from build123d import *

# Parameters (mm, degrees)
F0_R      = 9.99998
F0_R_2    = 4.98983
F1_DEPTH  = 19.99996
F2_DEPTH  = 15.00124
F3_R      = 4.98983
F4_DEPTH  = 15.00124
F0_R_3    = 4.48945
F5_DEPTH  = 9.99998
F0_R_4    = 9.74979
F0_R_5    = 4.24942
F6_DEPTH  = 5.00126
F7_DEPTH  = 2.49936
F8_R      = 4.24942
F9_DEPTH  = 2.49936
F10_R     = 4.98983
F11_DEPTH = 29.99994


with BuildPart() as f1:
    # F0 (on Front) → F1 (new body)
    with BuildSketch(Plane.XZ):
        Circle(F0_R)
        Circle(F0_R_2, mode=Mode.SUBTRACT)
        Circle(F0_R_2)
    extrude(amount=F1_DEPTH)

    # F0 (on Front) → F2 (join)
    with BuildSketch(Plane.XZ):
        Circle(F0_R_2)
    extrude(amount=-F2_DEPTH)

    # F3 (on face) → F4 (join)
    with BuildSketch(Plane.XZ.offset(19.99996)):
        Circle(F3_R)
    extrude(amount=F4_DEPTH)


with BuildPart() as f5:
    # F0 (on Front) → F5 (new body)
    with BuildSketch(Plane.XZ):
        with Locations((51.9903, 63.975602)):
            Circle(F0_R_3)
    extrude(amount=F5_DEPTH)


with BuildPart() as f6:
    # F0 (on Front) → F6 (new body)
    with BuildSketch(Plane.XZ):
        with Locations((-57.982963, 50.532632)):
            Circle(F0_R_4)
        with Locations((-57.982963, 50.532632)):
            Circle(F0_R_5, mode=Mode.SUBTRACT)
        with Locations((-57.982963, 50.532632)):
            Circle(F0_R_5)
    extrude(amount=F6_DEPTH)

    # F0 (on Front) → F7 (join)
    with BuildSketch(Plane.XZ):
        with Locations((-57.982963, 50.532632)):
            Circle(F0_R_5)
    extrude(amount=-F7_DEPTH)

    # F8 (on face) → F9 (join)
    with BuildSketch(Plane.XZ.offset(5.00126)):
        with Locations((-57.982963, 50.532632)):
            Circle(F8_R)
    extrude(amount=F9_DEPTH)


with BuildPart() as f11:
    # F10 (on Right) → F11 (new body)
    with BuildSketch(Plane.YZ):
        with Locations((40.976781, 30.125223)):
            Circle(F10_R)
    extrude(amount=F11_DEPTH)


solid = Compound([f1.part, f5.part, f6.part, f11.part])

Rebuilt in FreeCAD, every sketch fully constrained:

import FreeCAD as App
import Part
import Sketcher
Q = App.Units.Quantity

doc = App.newDocument("Part")
params = doc.addObject("Spreadsheet::Sheet", "Params")
for row, (alias, value) in enumerate([
    ("pad1_length", "19.99996 mm"),
    ("pad2_length", "15.00124 mm"),
    ("pad3_length", "15.00124 mm"),
    ("pad4_length", "9.99998 mm"),
    ("pad5_length", "5.00126 mm"),
    ("pad6_length", "2.49936 mm"),
    ("pad7_length", "2.49936 mm"),
    ("pad8_length", "29.99994 mm"),
], start=1):
    params.set(f"A{row}", alias)
    params.set(f"B{row}", "=" + value)
    params.setAlias(f"B{row}", alias)

body = doc.addObject("PartDesign::Body", "Body")

# Sketch on XZ plane
sketch1 = doc.addObject("Sketcher::SketchObject", "Sketch")
body.addObject(sketch1)
sketch1.AttachmentSupport = (doc.XZ_Plane, [""])
sketch1.MapMode = "FlatFace"
sketch1.addGeometry(Part.Circle(App.Vector(0, 0, 0), App.Vector(0, 0, 1), 10), False)
sketch1.addConstraint([
    Sketcher.Constraint("Coincident", 0, 3, -1, 1),
    Sketcher.Constraint("Diameter", 0, Q("19.99996 mm")),
])
pad1 = doc.addObject("PartDesign::Pad", "Pad")
body.addObject(pad1)
pad1.Profile = sketch1
pad1.setExpression("Length", "Params.pad1_length")

# Sketch on XZ plane
sketch2 = doc.addObject("Sketcher::SketchObject", "Sketch001")
body.addObject(sketch2)
sketch2.AttachmentSupport = (doc.XZ_Plane, [""])
sketch2.MapMode = "FlatFace"
sketch2.addGeometry(Part.Circle(App.Vector(0, 0, 0), App.Vector(0, 0, 1), 5), False)
sketch2.addConstraint([
    Sketcher.Constraint("Coincident", 0, 3, -1, 1),
    Sketcher.Constraint("Diameter", 0, Q("9.97966 mm")),
])
pad2 = doc.addObject("PartDesign::Pad", "Pad001")
body.addObject(pad2)
pad2.Profile = sketch2
pad2.setExpression("Length", "Params.pad2_length")
pad2.Reversed = True

# Sketch on XZ plane
sketch3 = doc.addObject("Sketcher::SketchObject", "Sketch002")
body.addObject(sketch3)
sketch3.AttachmentSupport = (doc.XZ_Plane, [""])
sketch3.MapMode = "FlatFace"
sketch3.AttachmentOffset = App.Placement(App.Vector(0, 0, 19.99996), App.Rotation())
sketch3.addGeometry(Part.Circle(App.Vector(0, 0, 0), App.Vector(0, 0, 1), 5), False)
sketch3.addConstraint([
    Sketcher.Constraint("Coincident", 0, 3, -1, 1),
    Sketcher.Constraint("Diameter", 0, Q("9.97966 mm")),
])
pad3 = doc.addObject("PartDesign::Pad", "Pad002")
body.addObject(pad3)
pad3.Profile = sketch3
pad3.setExpression("Length", "Params.pad3_length")
body2 = doc.addObject("PartDesign::Body", "Body001")

# Sketch on XZ plane
sketch4 = doc.addObject("Sketcher::SketchObject", "Sketch003")
body2.addObject(sketch4)
sketch4.AttachmentSupport = (doc.getObject("XZ_Plane001"), [""])
sketch4.MapMode = "FlatFace"
sketch4.addGeometry(Part.Circle(App.Vector(52, 64, 0), App.Vector(0, 0, 1), 4.5), False)
sketch4.addConstraint([
    Sketcher.Constraint("Diameter", 0, Q("8.9789 mm")),
    Sketcher.Constraint("DistanceX", -1, 1, 0, 3, Q("51.9903 mm")),
    Sketcher.Constraint("DistanceY", -1, 1, 0, 3, Q("63.975602 mm")),
])
pad4 = doc.addObject("PartDesign::Pad", "Pad003")
body2.addObject(pad4)
pad4.Profile = sketch4
pad4.setExpression("Length", "Params.pad4_length")
body3 = doc.addObject("PartDesign::Body", "Body002")

# Sketch on XZ plane
sketch5 = doc.addObject("Sketcher::SketchObject", "Sketch004")
body3.addObject(sketch5)
sketch5.AttachmentSupport = (doc.getObject("XZ_Plane002"), [""])
sketch5.MapMode = "FlatFace"
sketch5.addGeometry(Part.Circle(App.Vector(-58, 51, 0), App.Vector(0, 0, 1), 10), False)
sketch5.addConstraint([
    Sketcher.Constraint("Diameter", 0, Q("19.49958 mm")),
    Sketcher.Constraint("DistanceX", 0, 3, -1, 1, Q("57.982963 mm")),
    Sketcher.Constraint("DistanceY", -1, 1, 0, 3, Q("50.532632 mm")),
])
pad5 = doc.addObject("PartDesign::Pad", "Pad004")
body3.addObject(pad5)
pad5.Profile = sketch5
pad5.setExpression("Length", "Params.pad5_length")

# Sketch on XZ plane
sketch6 = doc.addObject("Sketcher::SketchObject", "Sketch005")
body3.addObject(sketch6)
sketch6.AttachmentSupport = (doc.getObject("XZ_Plane002"), [""])
sketch6.MapMode = "FlatFace"
sketch6.addGeometry(Part.Circle(App.Vector(-58, 50.5, 0), App.Vector(0, 0, 1), 4.2), False)
sketch6.addConstraint([
    Sketcher.Constraint("Diameter", 0, Q("8.49884 mm")),
    Sketcher.Constraint("DistanceX", 0, 3, -1, 1, Q("57.982963 mm")),
    Sketcher.Constraint("DistanceY", -1, 1, 0, 3, Q("50.532632 mm")),
])
pad6 = doc.addObject("PartDesign::Pad", "Pad005")
body3.addObject(pad6)
pad6.Profile = sketch6
pad6.setExpression("Length", "Params.pad6_length")
pad6.Reversed = True

# Sketch on XZ plane
sketch7 = doc.addObject("Sketcher::SketchObject", "Sketch006")
body3.addObject(sketch7)
sketch7.AttachmentSupport = (doc.getObject("XZ_Plane002"), [""])
sketch7.MapMode = "FlatFace"
sketch7.AttachmentOffset = App.Placement(App.Vector(0, 0, 5.00126), App.Rotation())
sketch7.addGeometry(Part.Circle(App.Vector(-58, 50.5, 0), App.Vector(0, 0, 1), 4.2), False)
sketch7.addConstraint([
    Sketcher.Constraint("Diameter", 0, Q("8.49884 mm")),
    Sketcher.Constraint("DistanceX", 0, 3, -1, 1, Q("57.982963 mm")),
    Sketcher.Constraint("DistanceY", -1, 1, 0, 3, Q("50.532632 mm")),
])
pad7 = doc.addObject("PartDesign::Pad", "Pad006")
body3.addObject(pad7)
pad7.Profile = sketch7
pad7.setExpression("Length", "Params.pad7_length")
body4 = doc.addObject("PartDesign::Body", "Body003")

# Sketch on YZ plane
sketch8 = doc.addObject("Sketcher::SketchObject", "Sketch007")
body4.addObject(sketch8)
sketch8.AttachmentSupport = (doc.getObject("YZ_Plane003"), [""])
sketch8.MapMode = "FlatFace"
sketch8.addGeometry(Part.Circle(App.Vector(41, 30.1, 0), App.Vector(0, 0, 1), 5), False)
sketch8.addConstraint([
    Sketcher.Constraint("Diameter", 0, Q("9.97966 mm")),
    Sketcher.Constraint("DistanceX", -1, 1, 0, 3, Q("40.976781 mm")),
    Sketcher.Constraint("DistanceY", -1, 1, 0, 3, Q("30.125223 mm")),
])
pad8 = doc.addObject("PartDesign::Pad", "Pad007")
body4.addObject(pad8)
pad8.Profile = sketch8
pad8.setExpression("Length", "Params.pad8_length")

doc.recompute()
